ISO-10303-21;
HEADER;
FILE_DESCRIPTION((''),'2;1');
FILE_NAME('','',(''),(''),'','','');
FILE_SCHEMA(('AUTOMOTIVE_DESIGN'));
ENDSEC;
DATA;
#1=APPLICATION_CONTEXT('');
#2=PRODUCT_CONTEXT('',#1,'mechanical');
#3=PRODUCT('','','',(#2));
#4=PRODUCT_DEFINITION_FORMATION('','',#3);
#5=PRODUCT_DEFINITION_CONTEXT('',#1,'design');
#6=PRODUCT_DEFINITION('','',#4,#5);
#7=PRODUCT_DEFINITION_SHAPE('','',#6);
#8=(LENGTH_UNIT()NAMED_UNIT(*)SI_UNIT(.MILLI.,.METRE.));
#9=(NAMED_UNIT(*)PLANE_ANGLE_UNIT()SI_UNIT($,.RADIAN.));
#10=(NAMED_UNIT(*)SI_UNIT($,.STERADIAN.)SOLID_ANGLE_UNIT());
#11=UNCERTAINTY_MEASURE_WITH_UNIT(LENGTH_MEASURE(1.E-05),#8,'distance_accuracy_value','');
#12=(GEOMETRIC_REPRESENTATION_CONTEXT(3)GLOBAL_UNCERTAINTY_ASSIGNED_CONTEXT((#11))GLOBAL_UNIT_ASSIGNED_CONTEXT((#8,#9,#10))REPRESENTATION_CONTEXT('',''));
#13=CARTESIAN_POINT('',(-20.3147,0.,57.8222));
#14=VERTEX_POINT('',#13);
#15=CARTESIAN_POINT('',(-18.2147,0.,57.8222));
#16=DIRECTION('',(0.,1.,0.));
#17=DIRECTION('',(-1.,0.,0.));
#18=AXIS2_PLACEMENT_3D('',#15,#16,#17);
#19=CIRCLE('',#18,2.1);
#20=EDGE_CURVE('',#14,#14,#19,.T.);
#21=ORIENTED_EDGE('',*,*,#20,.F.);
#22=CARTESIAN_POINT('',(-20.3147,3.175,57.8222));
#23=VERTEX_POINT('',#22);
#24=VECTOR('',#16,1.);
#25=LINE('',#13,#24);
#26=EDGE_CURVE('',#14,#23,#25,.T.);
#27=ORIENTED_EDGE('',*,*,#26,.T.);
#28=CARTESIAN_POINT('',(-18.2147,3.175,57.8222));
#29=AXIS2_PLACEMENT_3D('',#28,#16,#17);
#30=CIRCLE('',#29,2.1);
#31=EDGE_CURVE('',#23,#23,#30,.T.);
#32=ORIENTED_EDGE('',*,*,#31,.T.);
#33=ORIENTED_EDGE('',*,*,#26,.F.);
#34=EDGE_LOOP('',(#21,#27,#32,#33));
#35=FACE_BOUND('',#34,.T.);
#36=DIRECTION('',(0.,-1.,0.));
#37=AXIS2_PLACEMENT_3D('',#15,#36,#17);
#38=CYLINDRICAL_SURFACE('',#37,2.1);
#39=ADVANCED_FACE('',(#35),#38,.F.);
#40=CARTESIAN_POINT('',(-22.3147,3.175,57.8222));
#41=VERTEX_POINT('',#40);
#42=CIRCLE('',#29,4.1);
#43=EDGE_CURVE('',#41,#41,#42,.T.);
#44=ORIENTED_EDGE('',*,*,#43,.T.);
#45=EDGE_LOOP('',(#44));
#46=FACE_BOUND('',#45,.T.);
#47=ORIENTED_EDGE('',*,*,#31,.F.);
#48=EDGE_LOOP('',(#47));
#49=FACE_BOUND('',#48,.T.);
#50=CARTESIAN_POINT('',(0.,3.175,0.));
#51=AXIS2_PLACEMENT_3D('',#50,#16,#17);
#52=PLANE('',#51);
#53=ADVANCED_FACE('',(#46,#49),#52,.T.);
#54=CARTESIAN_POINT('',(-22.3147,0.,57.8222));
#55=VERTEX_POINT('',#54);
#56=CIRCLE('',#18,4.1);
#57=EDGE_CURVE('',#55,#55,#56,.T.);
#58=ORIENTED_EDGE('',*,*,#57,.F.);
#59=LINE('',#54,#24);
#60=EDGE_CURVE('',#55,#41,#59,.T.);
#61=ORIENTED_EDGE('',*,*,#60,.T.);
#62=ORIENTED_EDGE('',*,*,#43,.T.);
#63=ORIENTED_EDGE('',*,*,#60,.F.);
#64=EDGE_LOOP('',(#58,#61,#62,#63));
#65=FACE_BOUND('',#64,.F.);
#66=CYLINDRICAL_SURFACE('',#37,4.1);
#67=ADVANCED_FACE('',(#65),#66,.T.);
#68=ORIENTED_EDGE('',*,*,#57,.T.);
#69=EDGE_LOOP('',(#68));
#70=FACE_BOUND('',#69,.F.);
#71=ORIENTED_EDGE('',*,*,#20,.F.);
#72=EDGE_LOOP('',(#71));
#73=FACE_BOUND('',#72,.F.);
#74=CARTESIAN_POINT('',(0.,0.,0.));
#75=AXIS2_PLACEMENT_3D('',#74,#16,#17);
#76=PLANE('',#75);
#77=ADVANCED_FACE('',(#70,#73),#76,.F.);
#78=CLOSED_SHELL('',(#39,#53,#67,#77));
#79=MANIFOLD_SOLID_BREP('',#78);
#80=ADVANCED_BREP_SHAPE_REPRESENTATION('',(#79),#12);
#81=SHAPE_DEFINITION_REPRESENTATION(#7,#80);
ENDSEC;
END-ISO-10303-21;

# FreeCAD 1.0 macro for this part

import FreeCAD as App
import Part
import Sketcher
from FreeCAD import Vector

doc = App.newDocument("Part")
body = doc.addObject("PartDesign::Body", "Body")

sketch1 = body.newObject("Sketcher::SketchObject", "Sketch")
sketch1.AttachmentSupport = (doc.getObject("XZ_Plane"), [""])
sketch1.MapMode = "FlatFace"
sketch1.addGeometry([
    Part.Circle(Vector(-18.2, 57.8, 0), Vector(0, 0, 1), 4.1),
    Part.Circle(Vector(-18.2, 57.8, 0), Vector(0, 0, 1), 2.1),
], False)
sketch1.addConstraint([
    Sketcher.Constraint("Coincident", 1, 3, 0, 3),
    Sketcher.Constraint("Diameter", 1, 4.2),
    Sketcher.Constraint("Diameter", 0, 8.2),
    Sketcher.Constraint("DistanceX", 0, 3, -1, 1, 18.2147),
    Sketcher.Constraint("DistanceY", -1, 1, 0, 3, 57.8222),
])
pad1 = body.newObject("PartDesign::Pad", "Pad")
pad1.Profile = sketch1
pad1.Length = 3.175
pad1.Reversed = True

doc.recompute()
